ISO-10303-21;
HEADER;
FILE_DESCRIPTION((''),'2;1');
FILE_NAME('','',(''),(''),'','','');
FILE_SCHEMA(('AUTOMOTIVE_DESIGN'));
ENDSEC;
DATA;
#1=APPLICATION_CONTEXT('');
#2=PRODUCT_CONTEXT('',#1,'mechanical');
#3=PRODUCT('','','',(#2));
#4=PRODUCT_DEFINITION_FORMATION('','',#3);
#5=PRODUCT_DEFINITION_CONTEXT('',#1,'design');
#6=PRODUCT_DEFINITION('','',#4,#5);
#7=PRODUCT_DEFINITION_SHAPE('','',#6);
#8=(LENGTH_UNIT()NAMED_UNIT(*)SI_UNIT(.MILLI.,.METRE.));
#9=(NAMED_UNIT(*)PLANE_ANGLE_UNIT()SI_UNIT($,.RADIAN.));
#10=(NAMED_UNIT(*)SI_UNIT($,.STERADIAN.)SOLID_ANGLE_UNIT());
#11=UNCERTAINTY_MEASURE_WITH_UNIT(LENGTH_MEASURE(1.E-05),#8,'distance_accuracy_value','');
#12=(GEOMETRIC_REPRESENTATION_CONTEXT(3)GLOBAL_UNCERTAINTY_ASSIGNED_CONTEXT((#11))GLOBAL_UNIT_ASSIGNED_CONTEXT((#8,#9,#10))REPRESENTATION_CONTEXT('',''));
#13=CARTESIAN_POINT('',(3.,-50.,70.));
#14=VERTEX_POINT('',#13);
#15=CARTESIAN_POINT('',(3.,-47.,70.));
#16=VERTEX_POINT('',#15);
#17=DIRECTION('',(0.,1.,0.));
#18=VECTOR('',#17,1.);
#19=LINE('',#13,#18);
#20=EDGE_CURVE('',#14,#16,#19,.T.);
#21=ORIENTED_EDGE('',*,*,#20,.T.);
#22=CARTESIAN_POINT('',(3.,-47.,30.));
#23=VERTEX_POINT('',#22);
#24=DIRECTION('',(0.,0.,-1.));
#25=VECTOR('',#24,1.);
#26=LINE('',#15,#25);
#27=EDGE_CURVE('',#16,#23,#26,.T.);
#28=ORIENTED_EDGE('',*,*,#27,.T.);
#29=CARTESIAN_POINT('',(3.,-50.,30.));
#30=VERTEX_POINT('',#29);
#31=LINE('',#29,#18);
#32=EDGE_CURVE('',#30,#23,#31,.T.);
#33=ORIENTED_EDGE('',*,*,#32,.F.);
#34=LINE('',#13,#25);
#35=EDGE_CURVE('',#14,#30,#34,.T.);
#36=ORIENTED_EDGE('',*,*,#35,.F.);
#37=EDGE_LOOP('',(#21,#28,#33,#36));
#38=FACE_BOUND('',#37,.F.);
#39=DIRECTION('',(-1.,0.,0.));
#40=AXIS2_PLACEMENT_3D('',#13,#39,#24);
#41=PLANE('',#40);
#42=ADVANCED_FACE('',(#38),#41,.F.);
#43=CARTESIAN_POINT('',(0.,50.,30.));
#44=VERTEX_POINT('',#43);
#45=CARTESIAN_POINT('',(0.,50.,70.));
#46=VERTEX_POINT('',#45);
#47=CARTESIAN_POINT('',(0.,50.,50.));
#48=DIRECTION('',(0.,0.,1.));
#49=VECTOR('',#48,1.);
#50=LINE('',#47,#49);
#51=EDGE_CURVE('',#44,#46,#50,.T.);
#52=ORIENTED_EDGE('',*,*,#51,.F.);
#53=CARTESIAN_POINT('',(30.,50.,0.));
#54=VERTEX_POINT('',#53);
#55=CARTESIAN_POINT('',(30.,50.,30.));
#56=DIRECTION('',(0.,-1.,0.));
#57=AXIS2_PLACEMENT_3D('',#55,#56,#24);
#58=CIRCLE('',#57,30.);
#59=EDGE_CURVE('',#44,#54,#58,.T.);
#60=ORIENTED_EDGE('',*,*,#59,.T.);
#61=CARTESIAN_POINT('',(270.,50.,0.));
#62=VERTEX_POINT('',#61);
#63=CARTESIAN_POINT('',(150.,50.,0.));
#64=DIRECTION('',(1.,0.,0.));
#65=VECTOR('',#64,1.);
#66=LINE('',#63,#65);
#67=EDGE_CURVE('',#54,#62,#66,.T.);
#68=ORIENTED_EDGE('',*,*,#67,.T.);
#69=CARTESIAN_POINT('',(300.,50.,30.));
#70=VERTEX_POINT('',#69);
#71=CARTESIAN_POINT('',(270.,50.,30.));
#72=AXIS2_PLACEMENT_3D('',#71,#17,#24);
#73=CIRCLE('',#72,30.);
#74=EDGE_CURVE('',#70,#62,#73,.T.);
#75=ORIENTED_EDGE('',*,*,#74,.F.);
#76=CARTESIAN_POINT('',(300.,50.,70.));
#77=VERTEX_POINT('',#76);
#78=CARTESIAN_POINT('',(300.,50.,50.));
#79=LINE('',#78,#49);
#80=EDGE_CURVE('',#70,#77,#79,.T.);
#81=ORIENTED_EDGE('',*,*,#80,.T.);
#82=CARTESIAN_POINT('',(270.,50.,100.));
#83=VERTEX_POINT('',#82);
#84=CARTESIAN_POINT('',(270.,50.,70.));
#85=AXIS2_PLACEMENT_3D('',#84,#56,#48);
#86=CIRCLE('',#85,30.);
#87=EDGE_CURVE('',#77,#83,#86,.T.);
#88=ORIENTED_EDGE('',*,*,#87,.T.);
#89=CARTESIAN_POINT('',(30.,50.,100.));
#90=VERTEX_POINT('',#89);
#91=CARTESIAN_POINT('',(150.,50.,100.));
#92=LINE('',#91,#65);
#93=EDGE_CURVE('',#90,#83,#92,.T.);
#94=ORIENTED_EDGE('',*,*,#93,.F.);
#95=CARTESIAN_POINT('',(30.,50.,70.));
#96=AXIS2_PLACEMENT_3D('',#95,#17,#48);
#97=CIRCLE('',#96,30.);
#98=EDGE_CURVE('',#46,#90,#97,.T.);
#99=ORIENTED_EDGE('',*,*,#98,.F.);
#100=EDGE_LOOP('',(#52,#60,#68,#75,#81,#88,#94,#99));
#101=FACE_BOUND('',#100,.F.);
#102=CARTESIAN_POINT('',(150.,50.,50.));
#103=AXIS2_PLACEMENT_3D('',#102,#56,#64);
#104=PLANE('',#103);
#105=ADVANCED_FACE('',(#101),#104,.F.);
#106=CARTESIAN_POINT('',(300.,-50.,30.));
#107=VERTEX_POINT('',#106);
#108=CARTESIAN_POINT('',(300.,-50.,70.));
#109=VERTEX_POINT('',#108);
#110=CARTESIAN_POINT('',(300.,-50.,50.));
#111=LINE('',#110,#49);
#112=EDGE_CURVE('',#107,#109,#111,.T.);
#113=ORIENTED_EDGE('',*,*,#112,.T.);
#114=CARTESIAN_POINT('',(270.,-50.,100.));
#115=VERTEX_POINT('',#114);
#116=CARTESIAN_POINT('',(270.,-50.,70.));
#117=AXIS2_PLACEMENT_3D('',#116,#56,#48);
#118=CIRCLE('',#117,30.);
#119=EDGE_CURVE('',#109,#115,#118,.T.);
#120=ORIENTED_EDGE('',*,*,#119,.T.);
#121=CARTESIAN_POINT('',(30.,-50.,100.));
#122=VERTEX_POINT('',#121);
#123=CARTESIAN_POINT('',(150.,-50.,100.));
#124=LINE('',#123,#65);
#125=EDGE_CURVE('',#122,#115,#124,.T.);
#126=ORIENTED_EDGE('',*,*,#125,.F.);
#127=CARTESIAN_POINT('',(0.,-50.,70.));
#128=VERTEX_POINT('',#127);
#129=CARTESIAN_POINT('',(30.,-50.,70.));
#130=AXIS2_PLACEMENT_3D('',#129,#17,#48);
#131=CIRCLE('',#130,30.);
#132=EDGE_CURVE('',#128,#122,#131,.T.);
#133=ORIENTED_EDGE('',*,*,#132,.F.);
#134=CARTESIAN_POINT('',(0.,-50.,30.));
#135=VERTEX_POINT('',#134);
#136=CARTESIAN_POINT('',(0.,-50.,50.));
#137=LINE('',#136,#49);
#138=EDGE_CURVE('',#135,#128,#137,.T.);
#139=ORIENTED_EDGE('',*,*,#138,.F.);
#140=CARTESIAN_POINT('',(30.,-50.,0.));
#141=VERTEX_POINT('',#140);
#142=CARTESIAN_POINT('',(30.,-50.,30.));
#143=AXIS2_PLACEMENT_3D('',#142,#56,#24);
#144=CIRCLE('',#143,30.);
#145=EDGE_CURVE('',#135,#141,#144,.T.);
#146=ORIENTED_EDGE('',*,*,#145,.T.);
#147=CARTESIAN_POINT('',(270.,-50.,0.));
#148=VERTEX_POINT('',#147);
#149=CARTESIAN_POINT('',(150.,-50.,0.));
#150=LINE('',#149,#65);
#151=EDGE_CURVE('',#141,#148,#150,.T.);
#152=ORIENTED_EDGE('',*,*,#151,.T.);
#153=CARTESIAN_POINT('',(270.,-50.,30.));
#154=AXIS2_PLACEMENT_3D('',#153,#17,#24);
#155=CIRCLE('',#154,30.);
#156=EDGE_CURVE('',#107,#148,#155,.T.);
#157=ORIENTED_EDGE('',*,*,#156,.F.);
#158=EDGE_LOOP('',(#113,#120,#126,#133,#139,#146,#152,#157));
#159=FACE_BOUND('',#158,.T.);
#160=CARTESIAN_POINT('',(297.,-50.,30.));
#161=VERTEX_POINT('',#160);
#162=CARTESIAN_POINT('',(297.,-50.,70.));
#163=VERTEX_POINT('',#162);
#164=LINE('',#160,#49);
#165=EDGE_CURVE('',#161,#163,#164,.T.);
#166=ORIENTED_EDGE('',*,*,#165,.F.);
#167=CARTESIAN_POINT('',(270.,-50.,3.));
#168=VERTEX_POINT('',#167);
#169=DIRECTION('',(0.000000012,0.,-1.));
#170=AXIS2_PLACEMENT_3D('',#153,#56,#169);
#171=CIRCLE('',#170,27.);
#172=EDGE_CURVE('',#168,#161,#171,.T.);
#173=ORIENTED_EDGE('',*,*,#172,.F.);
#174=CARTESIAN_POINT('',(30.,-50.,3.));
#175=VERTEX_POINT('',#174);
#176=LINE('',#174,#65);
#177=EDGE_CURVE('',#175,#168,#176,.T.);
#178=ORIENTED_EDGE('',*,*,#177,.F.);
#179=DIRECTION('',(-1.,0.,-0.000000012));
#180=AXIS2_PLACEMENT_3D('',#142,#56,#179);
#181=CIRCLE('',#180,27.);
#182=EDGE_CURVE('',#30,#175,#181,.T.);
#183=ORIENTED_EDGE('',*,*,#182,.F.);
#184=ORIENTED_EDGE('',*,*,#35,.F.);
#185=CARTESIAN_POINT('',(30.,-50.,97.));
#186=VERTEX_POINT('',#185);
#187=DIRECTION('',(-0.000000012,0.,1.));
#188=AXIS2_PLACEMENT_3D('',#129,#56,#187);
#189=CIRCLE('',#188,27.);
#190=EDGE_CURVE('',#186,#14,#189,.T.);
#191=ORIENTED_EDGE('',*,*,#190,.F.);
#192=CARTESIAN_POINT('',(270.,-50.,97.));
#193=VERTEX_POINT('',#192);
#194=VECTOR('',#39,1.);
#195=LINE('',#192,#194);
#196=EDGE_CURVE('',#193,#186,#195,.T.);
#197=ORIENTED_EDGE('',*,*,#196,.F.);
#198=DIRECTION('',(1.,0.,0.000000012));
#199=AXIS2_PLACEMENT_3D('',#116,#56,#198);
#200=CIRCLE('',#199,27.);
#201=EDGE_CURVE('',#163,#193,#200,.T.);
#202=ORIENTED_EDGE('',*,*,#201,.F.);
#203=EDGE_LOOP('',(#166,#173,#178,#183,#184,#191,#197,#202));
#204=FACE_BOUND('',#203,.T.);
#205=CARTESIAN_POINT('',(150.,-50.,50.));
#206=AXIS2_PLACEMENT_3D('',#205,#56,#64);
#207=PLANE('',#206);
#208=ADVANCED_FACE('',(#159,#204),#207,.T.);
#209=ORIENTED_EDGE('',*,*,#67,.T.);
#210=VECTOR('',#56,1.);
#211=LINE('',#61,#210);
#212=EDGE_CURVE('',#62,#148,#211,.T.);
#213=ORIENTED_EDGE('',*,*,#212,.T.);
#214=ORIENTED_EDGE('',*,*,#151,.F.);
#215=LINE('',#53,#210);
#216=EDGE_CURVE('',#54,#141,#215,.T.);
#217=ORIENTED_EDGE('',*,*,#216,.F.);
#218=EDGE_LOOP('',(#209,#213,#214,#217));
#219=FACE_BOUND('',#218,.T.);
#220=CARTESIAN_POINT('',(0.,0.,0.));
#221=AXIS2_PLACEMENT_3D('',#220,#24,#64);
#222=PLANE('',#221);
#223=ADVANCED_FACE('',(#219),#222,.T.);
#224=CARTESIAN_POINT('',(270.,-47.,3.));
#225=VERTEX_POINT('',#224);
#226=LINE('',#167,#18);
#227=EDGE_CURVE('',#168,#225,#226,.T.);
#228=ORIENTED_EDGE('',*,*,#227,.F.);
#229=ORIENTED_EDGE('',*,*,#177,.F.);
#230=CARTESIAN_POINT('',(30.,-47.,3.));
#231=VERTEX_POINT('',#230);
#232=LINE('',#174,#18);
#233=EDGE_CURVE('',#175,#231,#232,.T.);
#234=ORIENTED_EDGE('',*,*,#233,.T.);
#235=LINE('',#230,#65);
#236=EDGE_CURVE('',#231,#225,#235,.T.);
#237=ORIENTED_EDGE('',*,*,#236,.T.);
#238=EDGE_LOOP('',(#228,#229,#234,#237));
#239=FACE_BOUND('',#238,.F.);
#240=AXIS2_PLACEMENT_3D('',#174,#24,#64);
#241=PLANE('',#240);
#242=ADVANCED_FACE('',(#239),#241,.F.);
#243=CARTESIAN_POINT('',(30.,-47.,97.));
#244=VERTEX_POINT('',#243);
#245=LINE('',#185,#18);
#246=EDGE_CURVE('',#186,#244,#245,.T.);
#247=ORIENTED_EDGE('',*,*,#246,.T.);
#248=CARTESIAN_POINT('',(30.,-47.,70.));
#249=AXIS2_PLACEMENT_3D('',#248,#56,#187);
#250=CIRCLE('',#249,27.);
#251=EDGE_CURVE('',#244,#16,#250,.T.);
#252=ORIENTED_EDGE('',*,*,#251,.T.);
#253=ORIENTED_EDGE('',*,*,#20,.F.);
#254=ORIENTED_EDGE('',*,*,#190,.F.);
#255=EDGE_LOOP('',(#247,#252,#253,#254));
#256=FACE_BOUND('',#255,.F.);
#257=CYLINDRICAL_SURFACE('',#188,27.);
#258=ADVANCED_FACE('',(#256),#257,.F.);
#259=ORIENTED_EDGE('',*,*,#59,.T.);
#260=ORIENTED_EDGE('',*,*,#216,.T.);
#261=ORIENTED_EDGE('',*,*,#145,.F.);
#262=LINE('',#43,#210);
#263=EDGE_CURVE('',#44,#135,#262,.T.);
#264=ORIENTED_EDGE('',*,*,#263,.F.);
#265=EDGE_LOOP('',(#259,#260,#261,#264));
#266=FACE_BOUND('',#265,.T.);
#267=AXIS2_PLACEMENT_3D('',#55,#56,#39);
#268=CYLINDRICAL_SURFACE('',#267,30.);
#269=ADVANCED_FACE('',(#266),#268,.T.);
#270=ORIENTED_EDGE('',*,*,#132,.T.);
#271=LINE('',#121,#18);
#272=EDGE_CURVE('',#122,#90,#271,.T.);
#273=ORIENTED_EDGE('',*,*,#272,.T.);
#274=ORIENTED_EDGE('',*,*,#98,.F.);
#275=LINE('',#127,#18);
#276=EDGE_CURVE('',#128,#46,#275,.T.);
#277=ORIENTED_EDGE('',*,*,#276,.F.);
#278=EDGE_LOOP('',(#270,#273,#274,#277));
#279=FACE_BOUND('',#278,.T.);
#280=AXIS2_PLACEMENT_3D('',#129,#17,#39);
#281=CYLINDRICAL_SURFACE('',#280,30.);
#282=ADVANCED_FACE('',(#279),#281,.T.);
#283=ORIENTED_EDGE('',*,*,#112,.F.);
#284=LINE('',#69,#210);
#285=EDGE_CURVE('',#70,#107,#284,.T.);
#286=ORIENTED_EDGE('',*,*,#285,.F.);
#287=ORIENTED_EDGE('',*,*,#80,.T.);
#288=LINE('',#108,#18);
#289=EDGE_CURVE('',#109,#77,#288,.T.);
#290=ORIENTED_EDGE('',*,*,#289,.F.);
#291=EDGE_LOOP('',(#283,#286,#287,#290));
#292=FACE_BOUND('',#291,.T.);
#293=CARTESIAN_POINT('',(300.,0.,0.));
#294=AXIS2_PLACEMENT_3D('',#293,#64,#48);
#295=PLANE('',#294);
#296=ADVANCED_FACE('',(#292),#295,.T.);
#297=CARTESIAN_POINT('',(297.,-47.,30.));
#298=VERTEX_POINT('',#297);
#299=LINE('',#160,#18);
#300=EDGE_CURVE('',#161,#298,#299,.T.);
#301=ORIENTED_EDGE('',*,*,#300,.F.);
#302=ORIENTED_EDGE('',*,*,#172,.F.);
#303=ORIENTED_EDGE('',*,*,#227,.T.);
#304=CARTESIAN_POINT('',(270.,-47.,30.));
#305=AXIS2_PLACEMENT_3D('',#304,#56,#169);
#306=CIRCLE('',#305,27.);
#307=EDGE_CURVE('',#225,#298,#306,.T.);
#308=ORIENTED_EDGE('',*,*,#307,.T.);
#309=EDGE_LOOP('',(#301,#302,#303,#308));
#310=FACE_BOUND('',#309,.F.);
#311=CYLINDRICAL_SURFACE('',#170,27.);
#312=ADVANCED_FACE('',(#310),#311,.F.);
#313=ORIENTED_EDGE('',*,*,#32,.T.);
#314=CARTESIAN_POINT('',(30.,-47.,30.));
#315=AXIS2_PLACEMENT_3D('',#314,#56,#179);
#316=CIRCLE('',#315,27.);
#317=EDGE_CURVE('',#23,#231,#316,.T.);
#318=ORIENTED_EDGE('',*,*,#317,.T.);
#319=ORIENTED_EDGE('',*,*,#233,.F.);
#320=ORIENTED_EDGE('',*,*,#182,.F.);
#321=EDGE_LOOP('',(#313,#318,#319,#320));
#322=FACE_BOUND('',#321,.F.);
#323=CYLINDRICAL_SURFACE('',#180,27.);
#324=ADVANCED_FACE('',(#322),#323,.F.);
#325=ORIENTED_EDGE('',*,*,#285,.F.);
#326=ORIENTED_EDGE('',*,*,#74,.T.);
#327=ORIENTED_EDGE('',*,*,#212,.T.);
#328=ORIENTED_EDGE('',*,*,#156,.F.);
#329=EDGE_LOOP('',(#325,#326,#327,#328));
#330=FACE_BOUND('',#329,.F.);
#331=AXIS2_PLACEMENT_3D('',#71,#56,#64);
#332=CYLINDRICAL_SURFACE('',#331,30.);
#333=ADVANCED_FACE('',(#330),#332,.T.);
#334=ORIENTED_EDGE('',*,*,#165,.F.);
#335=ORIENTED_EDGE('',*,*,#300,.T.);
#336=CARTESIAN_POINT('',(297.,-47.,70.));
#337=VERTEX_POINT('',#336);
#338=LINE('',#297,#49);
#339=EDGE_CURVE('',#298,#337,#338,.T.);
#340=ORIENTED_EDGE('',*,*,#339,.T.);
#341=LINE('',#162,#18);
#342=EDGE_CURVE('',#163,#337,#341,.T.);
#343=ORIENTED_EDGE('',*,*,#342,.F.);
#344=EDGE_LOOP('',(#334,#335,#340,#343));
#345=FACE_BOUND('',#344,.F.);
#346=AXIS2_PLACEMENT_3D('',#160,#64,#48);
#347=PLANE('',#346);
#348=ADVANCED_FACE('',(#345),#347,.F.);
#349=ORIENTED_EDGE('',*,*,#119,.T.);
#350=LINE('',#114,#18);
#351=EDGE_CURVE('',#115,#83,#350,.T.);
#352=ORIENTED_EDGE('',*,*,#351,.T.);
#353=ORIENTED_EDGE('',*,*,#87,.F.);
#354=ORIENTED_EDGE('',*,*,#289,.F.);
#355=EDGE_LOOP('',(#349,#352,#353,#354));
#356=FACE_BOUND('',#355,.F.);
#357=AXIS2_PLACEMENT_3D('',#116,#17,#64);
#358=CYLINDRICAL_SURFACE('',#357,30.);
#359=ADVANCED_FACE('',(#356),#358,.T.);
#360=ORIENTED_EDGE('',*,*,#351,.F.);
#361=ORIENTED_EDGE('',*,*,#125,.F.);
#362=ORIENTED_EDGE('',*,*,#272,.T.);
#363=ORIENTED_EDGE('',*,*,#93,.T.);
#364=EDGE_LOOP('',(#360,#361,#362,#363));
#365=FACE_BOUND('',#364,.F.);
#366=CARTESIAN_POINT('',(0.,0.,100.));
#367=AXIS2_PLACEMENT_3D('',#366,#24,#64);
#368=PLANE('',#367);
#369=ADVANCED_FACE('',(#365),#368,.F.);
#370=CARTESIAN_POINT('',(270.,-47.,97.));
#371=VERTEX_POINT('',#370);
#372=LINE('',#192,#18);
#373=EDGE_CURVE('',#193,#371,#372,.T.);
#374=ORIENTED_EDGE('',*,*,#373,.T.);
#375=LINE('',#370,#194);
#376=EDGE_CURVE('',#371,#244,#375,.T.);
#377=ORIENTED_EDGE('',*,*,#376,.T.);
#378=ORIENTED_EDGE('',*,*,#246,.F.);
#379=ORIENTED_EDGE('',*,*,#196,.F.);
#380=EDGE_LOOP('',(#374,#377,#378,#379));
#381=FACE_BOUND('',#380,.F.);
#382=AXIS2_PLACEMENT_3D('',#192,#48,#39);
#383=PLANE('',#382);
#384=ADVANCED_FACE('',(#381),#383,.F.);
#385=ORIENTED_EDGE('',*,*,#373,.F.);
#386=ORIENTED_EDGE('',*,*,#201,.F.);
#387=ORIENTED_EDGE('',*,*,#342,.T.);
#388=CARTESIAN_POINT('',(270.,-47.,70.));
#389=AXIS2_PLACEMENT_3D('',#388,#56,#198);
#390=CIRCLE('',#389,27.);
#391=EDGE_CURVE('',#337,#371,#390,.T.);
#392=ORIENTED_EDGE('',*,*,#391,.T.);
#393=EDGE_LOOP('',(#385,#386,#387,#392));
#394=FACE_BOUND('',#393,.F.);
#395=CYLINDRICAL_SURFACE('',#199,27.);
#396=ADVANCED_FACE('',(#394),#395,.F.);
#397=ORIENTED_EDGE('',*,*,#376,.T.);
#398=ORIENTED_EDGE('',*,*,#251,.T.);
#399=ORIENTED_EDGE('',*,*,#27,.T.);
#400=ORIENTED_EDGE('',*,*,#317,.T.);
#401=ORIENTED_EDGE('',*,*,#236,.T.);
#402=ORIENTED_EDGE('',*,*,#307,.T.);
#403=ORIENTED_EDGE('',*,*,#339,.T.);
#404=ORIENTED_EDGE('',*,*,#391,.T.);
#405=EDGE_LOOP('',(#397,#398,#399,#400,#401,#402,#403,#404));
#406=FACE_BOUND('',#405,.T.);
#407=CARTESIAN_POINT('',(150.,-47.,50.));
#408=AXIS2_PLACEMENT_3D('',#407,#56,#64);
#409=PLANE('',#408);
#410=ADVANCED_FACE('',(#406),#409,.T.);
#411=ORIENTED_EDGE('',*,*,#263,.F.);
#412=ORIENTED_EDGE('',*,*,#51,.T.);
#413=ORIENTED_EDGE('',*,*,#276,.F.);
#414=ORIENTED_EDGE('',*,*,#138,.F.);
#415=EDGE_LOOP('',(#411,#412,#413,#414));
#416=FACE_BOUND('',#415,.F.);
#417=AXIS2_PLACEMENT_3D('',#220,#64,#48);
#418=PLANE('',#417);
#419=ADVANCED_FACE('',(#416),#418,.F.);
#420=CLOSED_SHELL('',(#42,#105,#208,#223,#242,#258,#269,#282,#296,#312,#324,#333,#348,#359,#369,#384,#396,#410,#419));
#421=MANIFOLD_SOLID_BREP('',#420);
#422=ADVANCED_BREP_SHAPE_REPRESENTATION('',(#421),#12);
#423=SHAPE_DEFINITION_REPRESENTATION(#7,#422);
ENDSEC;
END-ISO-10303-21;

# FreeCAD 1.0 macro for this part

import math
import FreeCAD as App
import Part
import Sketcher
Q = App.Units.Quantity


def edges_at(feature, points):
    """Names of the edges that pass closest to the given points."""
    edges = feature.Shape.Edges
    near = lambda p: min(range(len(edges)), key=lambda i: edges[i].distToShape(Part.Vertex(*p))[0])
    return sorted({f"Edge{near(p) + 1}" for p in points})

doc = App.newDocument("Part")
body = doc.addObject("PartDesign::Body", "Body")

sketch1 = doc.addObject("Sketcher::SketchObject", "Sketch")
body.addObject(sketch1)
sketch1.AttachmentSupport = (doc.XZ_Plane, [""])
sketch1.MapMode = "FlatFace"
sketch1.addGeometry([
    Part.LineSegment(App.Vector(0, 100, 0), App.Vector(0, 0, 0)),
    Part.LineSegment(App.Vector(0, 0, 0), App.Vector(300, 0, 0)),
    Part.LineSegment(App.Vector(300, 0, 0), App.Vector(300, 100, 0)),
    Part.LineSegment(App.Vector(300, 100, 0), App.Vector(0, 100, 0)),
], False)
sketch1.addConstraint([
    Sketcher.Constraint("Coincident", 0, 2, 1, 1),
    Sketcher.Constraint("Coincident", 1, 2, 2, 1),
    Sketcher.Constraint("Coincident", 2, 2, 3, 1),
    Sketcher.Constraint("Coincident", 3, 2, 0, 1),
    Sketcher.Constraint("Vertical", 0),
    Sketcher.Constraint("Horizontal", 1),
    Sketcher.Constraint("Vertical", 2),
    Sketcher.Constraint("Horizontal", 3),
    Sketcher.Constraint("Coincident", 0, 2, -1, 1),
    Sketcher.Constraint("DistanceX", 1, 1, 1, 2, Q("300 mm")),
    Sketcher.Constraint("DistanceY", 0, 2, 0, 1, Q("100 mm")),
])
pad1 = doc.addObject("PartDesign::Pad", "Pad")
body.addObject(pad1)
pad1.Profile = sketch1
pad1.Length = 100
pad1.Midplane = True
doc.recompute()

fillet = doc.addObject("PartDesign::Fillet", "Fillet")
body.addObject(fillet)
fillet.Base = (pad1, edges_at(pad1, [
    (0, 0, 100),
    (0, 0, 0),
    (300, 0, 100),
    (300, 0, 0),
]))
fillet.Radius = 30

sketch2 = doc.addObject("Sketcher::SketchObject", "Sketch001")
body.addObject(sketch2)
sketch2.AttachmentSupport = (doc.XZ_Plane, [""])
sketch2.MapMode = "FlatFace"
sketch2.AttachmentOffset = App.Placement(App.Vector(0, 0, 50), App.Rotation())
sketch2.addGeometry([
    Part.ArcOfCircle(Part.Circle(App.Vector(30, 30, 0), App.Vector(0, 0, 1), 27), math.radians(-179.999999), math.radians(-90.000001)),
    Part.LineSegment(App.Vector(30, 3, 0), App.Vector(270, 3, 0)),
    Part.ArcOfCircle(Part.Circle(App.Vector(270, 30, 0), App.Vector(0, 0, 1), 27), math.radians(-89.999999), math.radians(-0.000001)),
    Part.LineSegment(App.Vector(297, 30, 0), App.Vector(297, 70, 0)),
    Part.ArcOfCircle(Part.Circle(App.Vector(270, 70, 0), App.Vector(0, 0, 1), 27), math.radians(0.000001), math.radians(89.999999)),
    Part.LineSegment(App.Vector(270, 97, 0), App.Vector(30, 97, 0)),
    Part.ArcOfCircle(Part.Circle(App.Vector(30, 70, 0), App.Vector(0, 0, 1), 27), math.radians(90.000001), math.radians(179.999999)),
    Part.LineSegment(App.Vector(3, 70, 0), App.Vector(3, 30, 0)),
], False)
sketch2.addConstraint([
    Sketcher.Constraint("Tangent", 0, 2, 1, 1),
    Sketcher.Constraint("Tangent", 1, 2, 2, 1),
    Sketcher.Constraint("Tangent", 2, 2, 3, 1),
    Sketcher.Constraint("Tangent", 3, 2, 4, 1),
    Sketcher.Constraint("Tangent", 4, 2, 5, 1),
    Sketcher.Constraint("Tangent", 5, 2, 6, 1),
    Sketcher.Constraint("Tangent", 6, 2, 7, 1),
    Sketcher.Constraint("Tangent", 7, 2, 0, 1),
    Sketcher.Constraint("Horizontal", 1),
    Sketcher.Constraint("Vertical", 3),
    Sketcher.Constraint("Horizontal", 5),
    Sketcher.Constraint("Vertical", 7),
    Sketcher.Constraint("Equal", 0, 2),
    Sketcher.Constraint("Equal", 2, 4),
    Sketcher.Constraint("Equal", 4, 6),
    Sketcher.Constraint("Radius", 0, Q("27 mm")),
    Sketcher.Constraint("DistanceX", 1, 1, 1, 2, Q("240 mm")),
    Sketcher.Constraint("DistanceY", 3, 1, 3, 2, Q("40 mm")),
    Sketcher.Constraint("DistanceX", -1, 1, 0, 3, Q("30 mm")),
    Sketcher.Constraint("DistanceY", -1, 1, 0, 3, Q("30 mm")),
])
pocket1 = doc.addObject("PartDesign::Pocket", "Pocket")
body.addObject(pocket1)
pocket1.Profile = sketch2
pocket1.Length = 3

doc.recompute()
